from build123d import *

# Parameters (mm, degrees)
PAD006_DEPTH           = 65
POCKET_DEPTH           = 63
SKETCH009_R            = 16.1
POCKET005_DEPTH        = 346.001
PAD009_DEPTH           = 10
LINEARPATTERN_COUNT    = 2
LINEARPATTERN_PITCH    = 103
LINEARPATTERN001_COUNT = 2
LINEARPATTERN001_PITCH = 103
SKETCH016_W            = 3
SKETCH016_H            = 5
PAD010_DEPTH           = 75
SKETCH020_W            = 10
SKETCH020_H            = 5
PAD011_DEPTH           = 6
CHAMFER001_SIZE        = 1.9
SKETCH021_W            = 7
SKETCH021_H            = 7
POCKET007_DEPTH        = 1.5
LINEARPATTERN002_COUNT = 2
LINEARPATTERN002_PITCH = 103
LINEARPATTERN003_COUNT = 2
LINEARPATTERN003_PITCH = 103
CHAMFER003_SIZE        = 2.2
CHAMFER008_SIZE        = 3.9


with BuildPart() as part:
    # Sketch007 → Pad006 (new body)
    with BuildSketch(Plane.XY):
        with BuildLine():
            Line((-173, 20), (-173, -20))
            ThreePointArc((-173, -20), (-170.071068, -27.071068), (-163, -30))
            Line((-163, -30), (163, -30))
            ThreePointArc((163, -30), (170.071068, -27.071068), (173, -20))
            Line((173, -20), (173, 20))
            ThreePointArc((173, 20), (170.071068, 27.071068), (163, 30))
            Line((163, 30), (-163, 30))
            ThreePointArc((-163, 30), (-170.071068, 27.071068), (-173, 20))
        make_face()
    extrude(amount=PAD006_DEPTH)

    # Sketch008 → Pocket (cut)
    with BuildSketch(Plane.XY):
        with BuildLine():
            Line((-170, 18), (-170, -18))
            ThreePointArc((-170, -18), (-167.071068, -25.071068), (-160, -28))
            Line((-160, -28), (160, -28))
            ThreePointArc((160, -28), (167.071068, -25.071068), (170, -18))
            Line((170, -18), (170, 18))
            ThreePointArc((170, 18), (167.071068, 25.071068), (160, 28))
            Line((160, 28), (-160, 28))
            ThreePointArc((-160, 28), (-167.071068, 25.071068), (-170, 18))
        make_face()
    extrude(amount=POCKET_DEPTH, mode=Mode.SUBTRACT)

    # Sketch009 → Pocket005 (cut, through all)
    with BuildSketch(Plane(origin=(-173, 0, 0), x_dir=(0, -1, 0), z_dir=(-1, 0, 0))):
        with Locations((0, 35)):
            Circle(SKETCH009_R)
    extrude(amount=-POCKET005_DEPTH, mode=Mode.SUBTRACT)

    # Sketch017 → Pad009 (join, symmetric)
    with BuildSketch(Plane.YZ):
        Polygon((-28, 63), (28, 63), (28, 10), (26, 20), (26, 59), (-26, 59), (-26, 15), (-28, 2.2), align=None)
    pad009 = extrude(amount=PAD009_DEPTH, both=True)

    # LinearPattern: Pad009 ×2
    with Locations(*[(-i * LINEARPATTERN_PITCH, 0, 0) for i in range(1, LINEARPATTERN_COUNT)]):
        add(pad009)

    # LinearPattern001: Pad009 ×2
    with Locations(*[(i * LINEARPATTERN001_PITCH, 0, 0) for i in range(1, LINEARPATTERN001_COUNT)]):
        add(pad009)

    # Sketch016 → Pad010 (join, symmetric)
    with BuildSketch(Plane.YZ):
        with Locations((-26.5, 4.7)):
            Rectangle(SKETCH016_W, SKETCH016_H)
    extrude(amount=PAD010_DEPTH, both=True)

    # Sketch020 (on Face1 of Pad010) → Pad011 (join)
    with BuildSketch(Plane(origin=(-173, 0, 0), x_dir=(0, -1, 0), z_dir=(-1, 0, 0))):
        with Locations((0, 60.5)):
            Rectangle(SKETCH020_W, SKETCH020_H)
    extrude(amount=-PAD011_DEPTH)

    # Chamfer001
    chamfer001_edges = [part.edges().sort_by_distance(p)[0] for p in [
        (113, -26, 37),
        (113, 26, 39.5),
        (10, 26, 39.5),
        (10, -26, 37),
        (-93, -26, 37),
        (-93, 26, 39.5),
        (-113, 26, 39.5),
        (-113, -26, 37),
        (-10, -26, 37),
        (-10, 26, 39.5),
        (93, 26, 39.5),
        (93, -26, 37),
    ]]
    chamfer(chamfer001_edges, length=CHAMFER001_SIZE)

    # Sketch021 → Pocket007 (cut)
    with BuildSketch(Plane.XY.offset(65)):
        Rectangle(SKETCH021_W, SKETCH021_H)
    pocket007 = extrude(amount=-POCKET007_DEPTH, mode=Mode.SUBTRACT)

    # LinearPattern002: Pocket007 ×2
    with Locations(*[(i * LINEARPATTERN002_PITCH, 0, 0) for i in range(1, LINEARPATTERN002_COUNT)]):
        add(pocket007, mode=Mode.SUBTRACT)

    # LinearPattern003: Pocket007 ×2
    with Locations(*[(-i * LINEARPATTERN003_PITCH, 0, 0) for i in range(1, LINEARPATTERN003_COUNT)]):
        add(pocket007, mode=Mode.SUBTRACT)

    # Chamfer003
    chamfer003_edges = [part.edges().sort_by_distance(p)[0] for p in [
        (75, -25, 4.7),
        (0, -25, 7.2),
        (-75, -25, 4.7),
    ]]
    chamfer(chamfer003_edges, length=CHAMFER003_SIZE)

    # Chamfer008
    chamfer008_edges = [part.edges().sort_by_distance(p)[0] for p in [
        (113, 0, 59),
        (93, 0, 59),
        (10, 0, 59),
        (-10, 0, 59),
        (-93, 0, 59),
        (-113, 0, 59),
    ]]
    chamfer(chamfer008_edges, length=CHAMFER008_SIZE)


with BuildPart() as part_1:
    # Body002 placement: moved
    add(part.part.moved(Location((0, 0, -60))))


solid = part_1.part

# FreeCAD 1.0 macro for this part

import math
import FreeCAD as App
import Part
import Sketcher
Q = App.Units.Quantity


def edges_at(feature, points):
    """Names of the edges that pass closest to the given points."""
    edges = feature.Shape.Edges
    near = lambda p: min(range(len(edges)), key=lambda i: edges[i].distToShape(Part.Vertex(*p))[0])
    return sorted({f"Edge{near(p) + 1}" for p in points})

doc = App.newDocument("Part")
body = doc.addObject("PartDesign::Body", "Body")

sketch1 = body.newObject("Sketcher::SketchObject", "Sketch")
sketch1.AttachmentSupport = (doc.getObject("XY_Plane"), [""])
sketch1.MapMode = "FlatFace"
sketch1.addGeometry([
    Part.LineSegment(App.Vector(-173, 20, 0), App.Vector(-173, -20, 0)),
    Part.ArcOfCircle(Part.Circle(App.Vector(-163, -20, 0), App.Vector(0, 0, 1), 10), math.radians(180), math.radians(270)),
    Part.LineSegment(App.Vector(-163, -30, 0), App.Vector(163, -30, 0)),
    Part.ArcOfCircle(Part.Circle(App.Vector(163, -20, 0), App.Vector(0, 0, 1), 10), math.radians(-90), math.radians(0)),
    Part.LineSegment(App.Vector(173, -20, 0), App.Vector(173, 20, 0)),
    Part.ArcOfCircle(Part.Circle(App.Vector(163, 20, 0), App.Vector(0, 0, 1), 10), math.radians(0), math.radians(90)),
    Part.LineSegment(App.Vector(163, 30, 0), App.Vector(-163, 30, 0)),
    Part.ArcOfCircle(Part.Circle(App.Vector(-163, 20, 0), App.Vector(0, 0, 1), 10), math.radians(90), math.radians(180)),
], False)
sketch1.addConstraint([
    Sketcher.Constraint("Tangent", 0, 2, 1, 1),
    Sketcher.Constraint("Tangent", 1, 2, 2, 1),
    Sketcher.Constraint("Tangent", 2, 2, 3, 1),
    Sketcher.Constraint("Tangent", 3, 2, 4, 1),
    Sketcher.Constraint("Tangent", 4, 2, 5, 1),
    Sketcher.Constraint("Tangent", 5, 2, 6, 1),
    Sketcher.Constraint("Tangent", 6, 2, 7, 1),
    Sketcher.Constraint("Tangent", 7, 2, 0, 1),
    Sketcher.Constraint("Vertical", 0),
    Sketcher.Constraint("Horizontal", 2),
    Sketcher.Constraint("Vertical", 4),
    Sketcher.Constraint("Horizontal", 6),
    Sketcher.Constraint("Equal", 1, 3),
    Sketcher.Constraint("Equal", 3, 5),
    Sketcher.Constraint("Equal", 5, 7),
    Sketcher.Constraint("Symmetric", 1, 3, 5, 3, -1, 1),
    Sketcher.Constraint("Radius", 1, Q("9.999999 mm")),
    Sketcher.Constraint("DistanceX", 2, 1, 2, 2, Q("326 mm")),
    Sketcher.Constraint("DistanceY", 0, 2, 0, 1, Q("40 mm")),
])
pad1 = body.newObject("PartDesign::Pad", "Pad")
pad1.Profile = sketch1
pad1.Length = 65

sketch2 = body.newObject("Sketcher::SketchObject", "Sketch001")
sketch2.AttachmentSupport = (doc.getObject("XY_Plane"), [""])
sketch2.MapMode = "FlatFace"
sketch2.addGeometry([
    Part.LineSegment(App.Vector(-170, 18, 0), App.Vector(-170, -18, 0)),
    Part.ArcOfCircle(Part.Circle(App.Vector(-160, -18, 0), App.Vector(0, 0, 1), 10), math.radians(180), math.radians(270)),
    Part.LineSegment(App.Vector(-160, -28, 0), App.Vector(160, -28, 0)),
    Part.ArcOfCircle(Part.Circle(App.Vector(160, -18, 0), App.Vector(0, 0, 1), 10), math.radians(-90), math.radians(0)),
    Part.LineSegment(App.Vector(170, -18, 0), App.Vector(170, 18, 0)),
    Part.ArcOfCircle(Part.Circle(App.Vector(160, 18, 0), App.Vector(0, 0, 1), 10), math.radians(0), math.radians(90)),
    Part.LineSegment(App.Vector(160, 28, 0), App.Vector(-160, 28, 0)),
    Part.ArcOfCircle(Part.Circle(App.Vector(-160, 18, 0), App.Vector(0, 0, 1), 10), math.radians(90), math.radians(180)),
], False)
sketch2.addConstraint([
    Sketcher.Constraint("Tangent", 0, 2, 1, 1),
    Sketcher.Constraint("Tangent", 1, 2, 2, 1),
    Sketcher.Constraint("Tangent", 2, 2, 3, 1),
    Sketcher.Constraint("Tangent", 3, 2, 4, 1),
    Sketcher.Constraint("Tangent", 4, 2, 5, 1),
    Sketcher.Constraint("Tangent", 5, 2, 6, 1),
    Sketcher.Constraint("Tangent", 6, 2, 7, 1),
    Sketcher.Constraint("Tangent", 7, 2, 0, 1),
    Sketcher.Constraint("Vertical", 0),
    Sketcher.Constraint("Horizontal", 2),
    Sketcher.Constraint("Vertical", 4),
    Sketcher.Constraint("Horizontal", 6),
    Sketcher.Constraint("Equal", 1, 3),
    Sketcher.Constraint("Equal", 3, 5),
    Sketcher.Constraint("Equal", 5, 7),
    Sketcher.Constraint("Symmetric", 1, 3, 5, 3, -1, 1),
    Sketcher.Constraint("Radius", 1, Q("9.999999 mm")),
    Sketcher.Constraint("DistanceX", 2, 1, 2, 2, Q("320 mm")),
    Sketcher.Constraint("DistanceY", 0, 2, 0, 1, Q("36 mm")),
])
pocket1 = body.newObject("PartDesign::Pocket", "Pocket")
pocket1.Profile = sketch2
pocket1.Length = 63
pocket1.Reversed = True

sketch3 = body.newObject("Sketcher::SketchObject", "Sketch002")
sketch3.AttachmentSupport = (doc.getObject("YZ_Plane"), [""])
sketch3.MapMode = "FlatFace"
sketch3.AttachmentOffset = App.Placement(App.Vector(0, 0, -173), App.Rotation())
sketch3.addGeometry(Part.Circle(App.Vector(0, 35, 0), App.Vector(0, 0, 1), 16), False)
sketch3.addConstraint([
    Sketcher.Constraint("PointOnObject", 0, 3, -2),
    Sketcher.Constraint("Diameter", 0, Q("32.2 mm")),
    Sketcher.Constraint("DistanceY", -1, 1, 0, 3, Q("35 mm")),
])
pocket2 = body.newObject("PartDesign::Pocket", "Pocket001")
pocket2.Profile = sketch3
pocket2.Type = "ThroughAll"
pocket2.Reversed = True

sketch4 = body.newObject("Sketcher::SketchObject", "Sketch003")
sketch4.AttachmentSupport = (doc.getObject("YZ_Plane"), [""])
sketch4.MapMode = "FlatFace"
sketch4.addGeometry([
    Part.LineSegment(App.Vector(28, 63, 0), App.Vector(-28, 63, 0)),
    Part.LineSegment(App.Vector(-28, 63, 0), App.Vector(-28, 2, 0)),
    Part.LineSegment(App.Vector(-28, 2, 0), App.Vector(-26, 15, 0)),
    Part.LineSegment(App.Vector(-26, 15, 0), App.Vector(-26, 59, 0)),
    Part.LineSegment(App.Vector(-26, 59, 0), App.Vector(26, 59, 0)),
    Part.LineSegment(App.Vector(26, 59, 0), App.Vector(26, 20, 0)),
    Part.LineSegment(App.Vector(26, 20, 0), App.Vector(28, 10, 0)),
    Part.LineSegment(App.Vector(28, 10, 0), App.Vector(28, 63, 0)),
], False)
sketch4.addConstraint([
    Sketcher.Constraint("Coincident", 0, 2, 1, 1),
    Sketcher.Constraint("Coincident", 1, 2, 2, 1),
    Sketcher.Constraint("Coincident", 2, 2, 3, 1),
    Sketcher.Constraint("Coincident", 3, 2, 4, 1),
    Sketcher.Constraint("Coincident", 4, 2, 5, 1),
    Sketcher.Constraint("Coincident", 5, 2, 6, 1),
    Sketcher.Constraint("Coincident", 6, 2, 7, 1),
    Sketcher.Constraint("Coincident", 7, 2, 0, 1),
    Sketcher.Constraint("Horizontal", 0),
    Sketcher.Constraint("Vertical", 1),
    Sketcher.Constraint("Vertical", 3),
    Sketcher.Constraint("Horizontal", 4),
    Sketcher.Constraint("Vertical", 5),
    Sketcher.Constraint("Vertical", 7),
    Sketcher.Constraint("DistanceX", 0, 2, 0, 1, Q("56 mm")),
    Sketcher.Constraint("DistanceX", 4, 1, 4, 2, Q("52 mm")),
    Sketcher.Constraint("DistanceY", 3, 1, 3, 2, Q("44 mm")),
    Sketcher.Constraint("DistanceY", 5, 2, 5, 1, Q("39 mm")),
    Sketcher.Constraint("DistanceY", 7, 1, 7, 2, Q("53 mm")),
    Sketcher.Constraint("DistanceY", 1, 2, 1, 1, Q("60.8 mm")),
    Sketcher.Constraint("DistanceX", 0, 2, -1, 1, Q("28 mm")),
    Sketcher.Constraint("DistanceY", -1, 1, 0, 2, Q("63 mm")),
    Sketcher.Constraint("DistanceX", 2, 2, -1, 1, Q("26 mm")),
    Sketcher.Constraint("DistanceY", -1, 1, 2, 2, Q("15 mm")),
])
pad2 = body.newObject("PartDesign::Pad", "Pad001")
pad2.Profile = sketch4
pad2.Length = 20
pad2.Midplane = True
doc.recompute()

linearpattern = body.newObject("PartDesign::LinearPattern", "LinearPattern")
linearpattern.Originals = [pad2]
linearpattern.Direction = (doc.getObject("X_Axis"), [""])
linearpattern.Mode = "offset"
linearpattern.Offset = 103
linearpattern.Occurrences = 2
linearpattern.Reversed = True
body.Tip = linearpattern
doc.recompute()

linearpattern2 = body.newObject("PartDesign::LinearPattern", "LinearPattern001")
linearpattern2.Originals = [pad2]
linearpattern2.Direction = (doc.getObject("X_Axis"), [""])
linearpattern2.Mode = "offset"
linearpattern2.Offset = 103
linearpattern2.Occurrences = 2
body.Tip = linearpattern2

sketch5 = body.newObject("Sketcher::SketchObject", "Sketch004")
sketch5.AttachmentSupport = (doc.getObject("YZ_Plane"), [""])
sketch5.MapMode = "FlatFace"
sketch5.addGeometry([
    Part.LineSegment(App.Vector(-28, 7.2, 0), App.Vector(-28, 2.2, 0)),
    Part.LineSegment(App.Vector(-28, 2.2, 0), App.Vector(-25, 2.2, 0)),
    Part.LineSegment(App.Vector(-25, 2.2, 0), App.Vector(-25, 7.2, 0)),
    Part.LineSegment(App.Vector(-25, 7.2, 0), App.Vector(-28, 7.2, 0)),
], False)
sketch5.addConstraint([
    Sketcher.Constraint("Coincident", 0, 2, 1, 1),
    Sketcher.Constraint("Coincident", 1, 2, 2, 1),
    Sketcher.Constraint("Coincident", 2, 2, 3, 1),
    Sketcher.Constraint("Coincident", 3, 2, 0, 1),
    Sketcher.Constraint("Vertical", 0),
    Sketcher.Constraint("Horizontal", 1),
    Sketcher.Constraint("Vertical", 2),
    Sketcher.Constraint("Horizontal", 3),
    Sketcher.Constraint("DistanceX", 1, 1, 1, 2, Q("3 mm")),
    Sketcher.Constraint("DistanceY", 0, 2, 0, 1, Q("5 mm")),
    Sketcher.Constraint("DistanceX", 0, 2, -1, 1, Q("28 mm")),
    Sketcher.Constraint("DistanceY", -1, 1, 0, 2, Q("2.2 mm")),
])
pad3 = body.newObject("PartDesign::Pad", "Pad002")
pad3.Profile = sketch5
pad3.Length = 150
pad3.Midplane = True

sketch6 = body.newObject("Sketcher::SketchObject", "Sketch005")
sketch6.AttachmentSupport = (doc.getObject("YZ_Plane"), [""])
sketch6.MapMode = "FlatFace"
sketch6.AttachmentOffset = App.Placement(App.Vector(0, 0, -173), App.Rotation())
sketch6.addGeometry([
    Part.LineSegment(App.Vector(5, 63, 0), App.Vector(5, 58, 0)),
    Part.LineSegment(App.Vector(5, 58, 0), App.Vector(-5, 58, 0)),
    Part.LineSegment(App.Vector(-5, 58, 0), App.Vector(-5, 63, 0)),
    Part.LineSegment(App.Vector(-5, 63, 0), App.Vector(5, 63, 0)),
], False)
sketch6.addConstraint([
    Sketcher.Constraint("Coincident", 0, 2, 1, 1),
    Sketcher.Constraint("Coincident", 1, 2, 2, 1),
    Sketcher.Constraint("Coincident", 2, 2, 3, 1),
    Sketcher.Constraint("Coincident", 3, 2, 0, 1),
    Sketcher.Constraint("Vertical", 0),
    Sketcher.Constraint("Horizontal", 1),
    Sketcher.Constraint("Vertical", 2),
    Sketcher.Constraint("Horizontal", 3),
    Sketcher.Constraint("DistanceX", 1, 2, 1, 1, Q("10 mm")),
    Sketcher.Constraint("DistanceY", 0, 2, 0, 1, Q("5 mm")),
    Sketcher.Constraint("DistanceX", -1, 1, 0, 2, Q("5 mm")),
    Sketcher.Constraint("DistanceY", -1, 1, 0, 2, Q("58 mm")),
])
pad4 = body.newObject("PartDesign::Pad", "Pad003")
pad4.Profile = sketch6
pad4.Length = 6
doc.recompute()

chamfer = body.newObject("PartDesign::Chamfer", "Chamfer")
chamfer.Base = (pad4, edges_at(pad4, [
    (113, -26, 37),
    (113, 26, 39.5),
    (10, 26, 39.5),
    (10, -26, 37),
    (-93, -26, 37),
    (-93, 26, 39.5),
    (-113, 26, 39.5),
    (-113, -26, 37),
    (-10, -26, 37),
    (-10, 26, 39.5),
    (93, 26, 39.5),
    (93, -26, 37),
]))
chamfer.Size = 1.9

sketch7 = body.newObject("Sketcher::SketchObject", "Sketch006")
sketch7.AttachmentSupport = (doc.getObject("XY_Plane"), [""])
sketch7.MapMode = "FlatFace"
sketch7.AttachmentOffset = App.Placement(App.Vector(0, 0, 65), App.Rotation())
sketch7.addGeometry([
    Part.LineSegment(App.Vector(-4, 4, 0), App.Vector(-4, -4, 0)),
    Part.LineSegment(App.Vector(-4, -4, 0), App.Vector(4, -4, 0)),
    Part.LineSegment(App.Vector(4, -4, 0), App.Vector(4, 4, 0)),
    Part.LineSegment(App.Vector(4, 4, 0), App.Vector(-4, 4, 0)),
], False)
sketch7.addConstraint([
    Sketcher.Constraint("Coincident", 0, 2, 1, 1),
    Sketcher.Constraint("Coincident", 1, 2, 2, 1),
    Sketcher.Constraint("Coincident", 2, 2, 3, 1),
    Sketcher.Constraint("Coincident", 3, 2, 0, 1),
    Sketcher.Constraint("Vertical", 0),
    Sketcher.Constraint("Horizontal", 1),
    Sketcher.Constraint("Vertical", 2),
    Sketcher.Constraint("Horizontal", 3),
    Sketcher.Constraint("Symmetric", 0, 2, 2, 2, -1, 1),
    Sketcher.Constraint("Equal", 3, 0),
    Sketcher.Constraint("DistanceX", 1, 1, 1, 2, Q("7 mm")),
])
pocket3 = body.newObject("PartDesign::Pocket", "Pocket002")
pocket3.Profile = sketch7
pocket3.Length = 1.5
doc.recompute()

linearpattern3 = body.newObject("PartDesign::LinearPattern", "LinearPattern002")
linearpattern3.Originals = [pocket3]
linearpattern3.Direction = (doc.getObject("X_Axis"), [""])
linearpattern3.Mode = "offset"
linearpattern3.Offset = 103
linearpattern3.Occurrences = 2
body.Tip = linearpattern3
doc.recompute()

linearpattern4 = body.newObject("PartDesign::LinearPattern", "LinearPattern003")
linearpattern4.Originals = [pocket3]
linearpattern4.Direction = (doc.getObject("X_Axis"), [""])
linearpattern4.Mode = "offset"
linearpattern4.Offset = 103
linearpattern4.Occurrences = 2
linearpattern4.Reversed = True
body.Tip = linearpattern4
doc.recompute()

chamfer2 = body.newObject("PartDesign::Chamfer", "Chamfer001")
chamfer2.Base = (linearpattern4, edges_at(linearpattern4, [(75, -25, 4.7), (0, -25, 7.2), (-75, -25, 4.7)]))
chamfer2.Size = 2.2
doc.recompute()

chamfer3 = body.newObject("PartDesign::Chamfer", "Chamfer002")
chamfer3.Base = (chamfer2, edges_at(chamfer2, [
    (113, 0, 59),
    (93, 0, 59),
    (10, 0, 59),
    (-10, 0, 59),
    (-93, 0, 59),
    (-113, 0, 59),
]))
chamfer3.Size = 3.9
body2 = doc.addObject("PartDesign::Body", "Body001")
doc.recompute()

body.Placement = App.Placement(App.Vector(0, 0, -60), App.Rotation(App.Vector(0, 0, 1), 0))
boolean = body2.newObject("PartDesign::Boolean", "Boolean")
boolean.Type = "Fuse"
boolean.addObjects([body])

doc.recompute()
